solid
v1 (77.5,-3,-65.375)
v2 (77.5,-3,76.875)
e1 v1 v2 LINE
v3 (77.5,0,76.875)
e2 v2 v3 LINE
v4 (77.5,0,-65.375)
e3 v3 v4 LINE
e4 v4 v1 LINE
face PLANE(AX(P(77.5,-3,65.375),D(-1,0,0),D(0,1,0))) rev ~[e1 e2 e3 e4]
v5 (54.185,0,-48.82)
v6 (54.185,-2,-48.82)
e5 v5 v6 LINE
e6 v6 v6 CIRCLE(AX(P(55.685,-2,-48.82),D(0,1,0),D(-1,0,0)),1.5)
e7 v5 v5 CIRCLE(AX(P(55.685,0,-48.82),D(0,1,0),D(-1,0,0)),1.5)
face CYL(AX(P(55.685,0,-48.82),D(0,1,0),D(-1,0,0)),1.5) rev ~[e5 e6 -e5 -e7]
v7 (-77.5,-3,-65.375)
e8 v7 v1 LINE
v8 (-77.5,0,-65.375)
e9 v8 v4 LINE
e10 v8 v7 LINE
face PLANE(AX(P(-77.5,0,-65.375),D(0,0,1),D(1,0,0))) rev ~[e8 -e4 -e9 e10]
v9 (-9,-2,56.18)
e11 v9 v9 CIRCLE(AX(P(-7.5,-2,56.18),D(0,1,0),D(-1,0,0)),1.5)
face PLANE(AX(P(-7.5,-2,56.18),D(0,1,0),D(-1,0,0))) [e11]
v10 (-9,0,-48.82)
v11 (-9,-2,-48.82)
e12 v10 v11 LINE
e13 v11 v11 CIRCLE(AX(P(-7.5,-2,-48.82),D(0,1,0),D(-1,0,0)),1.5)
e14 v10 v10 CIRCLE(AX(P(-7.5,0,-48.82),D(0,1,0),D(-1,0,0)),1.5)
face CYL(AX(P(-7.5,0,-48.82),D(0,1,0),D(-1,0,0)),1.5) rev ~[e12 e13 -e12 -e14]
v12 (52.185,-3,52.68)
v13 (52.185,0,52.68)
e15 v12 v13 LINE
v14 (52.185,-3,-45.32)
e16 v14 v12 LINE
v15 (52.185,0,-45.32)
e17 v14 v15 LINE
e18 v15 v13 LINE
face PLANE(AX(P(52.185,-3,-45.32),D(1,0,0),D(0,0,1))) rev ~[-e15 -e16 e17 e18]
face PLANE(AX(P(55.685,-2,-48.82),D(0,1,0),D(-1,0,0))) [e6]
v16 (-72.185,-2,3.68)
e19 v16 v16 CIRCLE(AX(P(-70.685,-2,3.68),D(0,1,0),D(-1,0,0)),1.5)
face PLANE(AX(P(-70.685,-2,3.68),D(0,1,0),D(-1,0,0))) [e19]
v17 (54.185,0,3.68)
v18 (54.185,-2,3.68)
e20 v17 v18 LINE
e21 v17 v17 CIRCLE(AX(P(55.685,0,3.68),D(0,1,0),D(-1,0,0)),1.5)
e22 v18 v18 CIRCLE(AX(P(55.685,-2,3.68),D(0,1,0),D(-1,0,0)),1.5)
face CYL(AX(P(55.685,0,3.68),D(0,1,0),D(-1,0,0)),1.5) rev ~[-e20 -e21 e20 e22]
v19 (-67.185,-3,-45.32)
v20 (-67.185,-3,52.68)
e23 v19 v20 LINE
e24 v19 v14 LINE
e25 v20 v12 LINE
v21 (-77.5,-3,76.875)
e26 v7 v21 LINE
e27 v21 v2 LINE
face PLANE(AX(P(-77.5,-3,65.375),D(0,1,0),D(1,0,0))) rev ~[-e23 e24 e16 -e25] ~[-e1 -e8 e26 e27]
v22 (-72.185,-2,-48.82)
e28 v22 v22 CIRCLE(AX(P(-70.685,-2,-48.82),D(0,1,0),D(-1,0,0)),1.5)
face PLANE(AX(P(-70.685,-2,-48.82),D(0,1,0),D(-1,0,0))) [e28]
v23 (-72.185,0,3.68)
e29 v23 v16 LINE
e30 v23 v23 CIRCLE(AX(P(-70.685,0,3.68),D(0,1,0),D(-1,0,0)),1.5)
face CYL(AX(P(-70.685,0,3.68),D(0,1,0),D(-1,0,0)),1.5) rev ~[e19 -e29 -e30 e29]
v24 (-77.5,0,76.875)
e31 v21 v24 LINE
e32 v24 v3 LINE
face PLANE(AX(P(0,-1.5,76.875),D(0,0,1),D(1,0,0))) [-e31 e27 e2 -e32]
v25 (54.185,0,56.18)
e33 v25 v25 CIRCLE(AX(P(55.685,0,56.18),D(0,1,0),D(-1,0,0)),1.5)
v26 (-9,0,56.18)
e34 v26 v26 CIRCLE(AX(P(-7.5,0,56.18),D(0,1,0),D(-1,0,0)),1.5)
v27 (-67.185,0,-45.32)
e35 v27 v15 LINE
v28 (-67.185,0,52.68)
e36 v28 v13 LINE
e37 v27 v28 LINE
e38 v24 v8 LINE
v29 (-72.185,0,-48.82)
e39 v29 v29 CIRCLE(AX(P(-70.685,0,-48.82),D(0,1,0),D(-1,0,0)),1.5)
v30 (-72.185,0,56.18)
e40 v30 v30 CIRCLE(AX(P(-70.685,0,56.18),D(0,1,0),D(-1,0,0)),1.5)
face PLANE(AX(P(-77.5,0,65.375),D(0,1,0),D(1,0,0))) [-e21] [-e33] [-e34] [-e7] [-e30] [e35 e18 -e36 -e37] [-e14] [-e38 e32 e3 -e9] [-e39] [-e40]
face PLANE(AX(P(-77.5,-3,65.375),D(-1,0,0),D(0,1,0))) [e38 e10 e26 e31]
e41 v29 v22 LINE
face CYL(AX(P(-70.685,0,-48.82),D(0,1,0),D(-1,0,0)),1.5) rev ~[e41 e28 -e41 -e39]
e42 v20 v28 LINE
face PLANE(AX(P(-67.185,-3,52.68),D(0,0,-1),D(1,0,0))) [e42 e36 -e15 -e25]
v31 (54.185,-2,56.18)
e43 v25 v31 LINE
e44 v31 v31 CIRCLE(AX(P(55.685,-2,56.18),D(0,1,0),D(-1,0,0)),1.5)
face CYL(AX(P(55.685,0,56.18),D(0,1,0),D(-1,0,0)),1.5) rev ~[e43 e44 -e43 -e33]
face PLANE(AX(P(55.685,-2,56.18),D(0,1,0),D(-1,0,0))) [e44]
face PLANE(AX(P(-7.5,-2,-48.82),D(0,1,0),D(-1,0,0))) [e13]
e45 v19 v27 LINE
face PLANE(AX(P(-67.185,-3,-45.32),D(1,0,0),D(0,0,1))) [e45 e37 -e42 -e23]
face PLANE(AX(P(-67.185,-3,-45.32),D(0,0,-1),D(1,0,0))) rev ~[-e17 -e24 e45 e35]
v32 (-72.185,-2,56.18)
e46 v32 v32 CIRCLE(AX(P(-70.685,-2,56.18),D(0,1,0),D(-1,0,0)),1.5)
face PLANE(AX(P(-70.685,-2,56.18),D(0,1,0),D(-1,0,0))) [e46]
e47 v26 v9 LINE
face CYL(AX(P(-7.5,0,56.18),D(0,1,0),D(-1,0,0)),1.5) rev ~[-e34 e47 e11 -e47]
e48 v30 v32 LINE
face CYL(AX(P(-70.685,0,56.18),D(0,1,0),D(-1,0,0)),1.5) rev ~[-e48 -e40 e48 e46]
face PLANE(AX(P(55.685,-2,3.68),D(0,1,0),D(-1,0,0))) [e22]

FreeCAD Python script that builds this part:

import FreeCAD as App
import Part
import Sketcher
Q = App.Units.Quantity

doc = App.newDocument("Part")
params = doc.addObject("Spreadsheet::Sheet", "Params")
for row, (alias, value) in enumerate([
    ("sketch1_width", "155 mm"),
    ("sketch1_height", "130.75 mm"),
    ("pad1_length", "3 mm"),
    ("sketch2_height", "92 mm"),
    ("sketch2_width", "113.37 mm"),
    ("pocket1_length", "25 mm"),
    ("sketch3_height", "98 mm"),
    ("sketch3_width", "119.37 mm"),
    ("pocket2_length", "25 mm"),
    ("sketch4_diameter", "3 mm"),
    ("pocket3_length", "2 mm"),
    ("sketch5_width", "155 mm"),
    ("sketch5_height", "3 mm"),
    ("pad2_length", "11.5 mm"),
], start=1):
    params.set(f"A{row}", alias)
    params.set(f"B{row}", "=" + value)
    params.setAlias(f"B{row}", alias)

body = doc.addObject("PartDesign::Body", "Body")

# Sketch on XZ plane
sketch1 = doc.addObject("Sketcher::SketchObject", "Sketch")
body.addObject(sketch1)
sketch1.AttachmentSupport = (doc.XZ_Plane, [""])
sketch1.MapMode = "FlatFace"
sketch1.addGeometry(Part.LineSegment(App.Vector(-78, 65, 0), App.Vector(-78, -65, 0)), False)
sketch1.addGeometry(Part.LineSegment(App.Vector(-78, -65, 0), App.Vector(78, -65, 0)), False)
sketch1.addGeometry(Part.LineSegment(App.Vector(78, -65, 0), App.Vector(78, 65, 0)), False)
sketch1.addGeometry(Part.LineSegment(App.Vector(78, 65, 0), App.Vector(-78, 65, 0)), False)
sketch1.addConstraint(Sketcher.Constraint("Coincident", 0, 2, 1, 1))
sketch1.addConstraint(Sketcher.Constraint("Coincident", 1, 2, 2, 1))
sketch1.addConstraint(Sketcher.Constraint("Coincident", 2, 2, 3, 1))
sketch1.addConstraint(Sketcher.Constraint("Coincident", 3, 2, 0, 1))
sketch1.addConstraint(Sketcher.Constraint("Vertical", 0))
sketch1.addConstraint(Sketcher.Constraint("Horizontal", 1))
sketch1.addConstraint(Sketcher.Constraint("Vertical", 2))
sketch1.addConstraint(Sketcher.Constraint("Horizontal", 3))
sketch1.addConstraint(Sketcher.Constraint("Symmetric", 0, 2, 2, 2, -1, 1))
sketch1.addConstraint(Sketcher.Constraint("DistanceX", 1, 1, 1, 2, Q("155 mm")))
sketch1.addConstraint(Sketcher.Constraint("DistanceY", 0, 2, 0, 1, Q("130.75 mm")))
sketch1.setExpression("Constraints[9]", "Params.sketch1_width")
sketch1.setExpression("Constraints[10]", "Params.sketch1_height")
pad1 = doc.addObject("PartDesign::Pad", "Pad")
body.addObject(pad1)
pad1.Profile = sketch1
pad1.setExpression("Length", "Params.pad1_length")

# Sketch on XZ plane
sketch2 = doc.addObject("Sketcher::SketchObject", "Sketch001")
body.addObject(sketch2)
sketch2.AttachmentSupport = (doc.XZ_Plane, [""])
sketch2.MapMode = "FlatFace"
sketch2.addGeometry(Part.LineSegment(App.Vector(49, 50, 0), App.Vector(49, -42, 0)), False)
sketch2.addGeometry(Part.LineSegment(App.Vector(49, -42, 0), App.Vector(-64, -42, 0)), False)
sketch2.addGeometry(Part.LineSegment(App.Vector(-64, -42, 0), App.Vector(-64, 50, 0)), False)
sketch2.addGeometry(Part.LineSegment(App.Vector(-64, 50, 0), App.Vector(49, 50, 0)), False)
sketch2.addConstraint(Sketcher.Constraint("Coincident", 0, 2, 1, 1))
sketch2.addConstraint(Sketcher.Constraint("Coincident", 1, 2, 2, 1))
sketch2.addConstraint(Sketcher.Constraint("Coincident", 2, 2, 3, 1))
sketch2.addConstraint(Sketcher.Constraint("Coincident", 3, 2, 0, 1))
sketch2.addConstraint(Sketcher.Constraint("Vertical", 0))
sketch2.addConstraint(Sketcher.Constraint("Horizontal", 1))
sketch2.addConstraint(Sketcher.Constraint("Vertical", 2))
sketch2.addConstraint(Sketcher.Constraint("Horizontal", 3))
sketch2.addConstraint(Sketcher.Constraint("DistanceY", 0, 2, 0, 1, Q("92 mm")))
sketch2.addConstraint(Sketcher.Constraint("DistanceX", 1, 2, 1, 1, Q("113.37 mm")))
sketch2.addConstraint(Sketcher.Constraint("DistanceY", 0, 2, -1, 1, Q("42.32 mm")))
sketch2.addConstraint(Sketcher.Constraint("DistanceX", -1, 1, 0, 2, Q("49.185 mm")))
sketch2.setExpression("Constraints[8]", "Params.sketch2_height")
sketch2.setExpression("Constraints[9]", "Params.sketch2_width")
pocket1 = doc.addObject("PartDesign::Pocket", "Pocket")
body.addObject(pocket1)
pocket1.Profile = sketch2
pocket1.setExpression("Length", "Params.pocket1_length")
pocket1.Reversed = True

# Sketch on XZ plane
sketch3 = doc.addObject("Sketcher::SketchObject", "Sketch002")
body.addObject(sketch3)
sketch3.AttachmentSupport = (doc.XZ_Plane, [""])
sketch3.MapMode = "FlatFace"
sketch3.AttachmentOffset = App.Placement(App.Vector(0, 0, 3), App.Rotation())
sketch3.addGeometry(Part.LineSegment(App.Vector(-67, 53, 0), App.Vector(-67, -45, 0)), False)
sketch3.addGeometry(Part.LineSegment(App.Vector(-67, -45, 0), App.Vector(52, -45, 0)), False)
sketch3.addGeometry(Part.LineSegment(App.Vector(52, -45, 0), App.Vector(52, 53, 0)), False)
sketch3.addGeometry(Part.LineSegment(App.Vector(52, 53, 0), App.Vector(-67, 53, 0)), False)
sketch3.addConstraint(Sketcher.Constraint("Coincident", 0, 2, 1, 1))
sketch3.addConstraint(Sketcher.Constraint("Coincident", 1, 2, 2, 1))
sketch3.addConstraint(Sketcher.Constraint("Coincident", 2, 2, 3, 1))
sketch3.addConstraint(Sketcher.Constraint("Coincident", 3, 2, 0, 1))
sketch3.addConstraint(Sketcher.Constraint("Vertical", 0))
sketch3.addConstraint(Sketcher.Constraint("Horizontal", 1))
sketch3.addConstraint(Sketcher.Constraint("Vertical", 2))
sketch3.addConstraint(Sketcher.Constraint("Horizontal", 3))
sketch3.addConstraint(Sketcher.Constraint("DistanceY", 0, 2, 0, 1, Q("98 mm")))
sketch3.addConstraint(Sketcher.Constraint("DistanceX", 1, 1, 1, 2, Q("119.37 mm")))
sketch3.addConstraint(Sketcher.Constraint("DistanceY", 0, 2, -1, 1, Q("45.32 mm")))
sketch3.addConstraint(Sketcher.Constraint("DistanceX", 0, 2, -1, 1, Q("67.185 mm")))
sketch3.setExpression("Constraints[8]", "Params.sketch3_height")
sketch3.setExpression("Constraints[9]", "Params.sketch3_width")
pocket2 = doc.addObject("PartDesign::Pocket", "Pocket001")
body.addObject(pocket2)
pocket2.Profile = sketch3
pocket2.setExpression("Length", "Params.pocket2_length")

# Sketch on XZ plane
sketch4 = doc.addObject("Sketcher::SketchObject", "Sketch003")
body.addObject(sketch4)
sketch4.AttachmentSupport = (doc.XZ_Plane, [""])
sketch4.MapMode = "FlatFace"
sketch4.addGeometry(Part.Circle(App.Vector(55.7, 56.2, 0), App.Vector(0, 0, 1), 1.5), False)
sketch4.addGeometry(Part.Circle(App.Vector(-70.7, 56.2, 0), App.Vector(0, 0, 1), 1.5), False)
sketch4.addGeometry(Part.Circle(App.Vector(-70.7, -48.8, 0), App.Vector(0, 0, 1), 1.5), False)
sketch4.addGeometry(Part.Circle(App.Vector(55.7, -48.8, 0), App.Vector(0, 0, 1), 1.5), False)
sketch4.addGeometry(Part.Circle(App.Vector(-7.5, -48.8, 0), App.Vector(0, 0, 1), 1.5), False)
sketch4.addGeometry(Part.Circle(App.Vector(55.7, 3.7, 0), App.Vector(0, 0, 1), 1.5), False)
sketch4.addGeometry(Part.Circle(App.Vector(-70.7, 3.7, 0), App.Vector(0, 0, 1), 1.5), False)
sketch4.addGeometry(Part.Circle(App.Vector(-7.5, 56.2, 0), App.Vector(0, 0, 1), 1.5), False)
sketch4.addConstraint(Sketcher.Constraint("Equal", 0, 1))
sketch4.addConstraint(Sketcher.Constraint("Equal", 1, 2))
sketch4.addConstraint(Sketcher.Constraint("Equal", 2, 3))
sketch4.addConstraint(Sketcher.Constraint("Equal", 3, 4))
sketch4.addConstraint(Sketcher.Constraint("Equal", 4, 5))
sketch4.addConstraint(Sketcher.Constraint("Equal", 5, 6))
sketch4.addConstraint(Sketcher.Constraint("Equal", 6, 7))
sketch4.addConstraint(Sketcher.Constraint("Horizontal", 0, 3, 1, 3))
sketch4.addConstraint(Sketcher.Constraint("Horizontal", 2, 3, 3, 3))
sketch4.addConstraint(Sketcher.Constraint("Horizontal", 3, 3, 4, 3))
sketch4.addConstraint(Sketcher.Constraint("Horizontal", 5, 3, 6, 3))
sketch4.addConstraint(Sketcher.Constraint("Horizontal", 1, 3, 7, 3))
sketch4.addConstraint(Sketcher.Constraint("Vertical", 1, 3, 2, 3))
sketch4.addConstraint(Sketcher.Constraint("Vertical", 0, 3, 3, 3))
sketch4.addConstraint(Sketcher.Constraint("Vertical", 3, 3, 5, 3))
sketch4.addConstraint(Sketcher.Constraint("Vertical", 2, 3, 6, 3))
sketch4.addConstraint(Sketcher.Constraint("Vertical", 4, 3, 7, 3))
sketch4.addConstraint(Sketcher.Constraint("Diameter", 0, Q("3 mm")))
sketch4.addConstraint(Sketcher.Constraint("DistanceY", 2, 3, 1, 3, Q("105 mm")))
sketch4.addConstraint(Sketcher.Constraint("DistanceX", 4, 3, -1, 1, Q("7.5 mm")))
sketch4.addConstraint(Sketcher.Constraint("DistanceY", 5, 3, 0, 3, Q("52.5 mm")))
sketch4.addConstraint(Sketcher.Constraint("DistanceY", -1, 1, 0, 3, Q("56.18 mm")))
sketch4.addConstraint(Sketcher.Constraint("DistanceX", 1, 3, 0, 3, Q("126.37 mm")))
sketch4.addConstraint(Sketcher.Constraint("DistanceX", -1, 1, 0, 3, Q("55.685 mm")))
sketch4.setExpression("Constraints[17]", "Params.sketch4_diameter")
pocket3 = doc.addObject("PartDesign::Pocket", "Pocket002")
body.addObject(pocket3)
pocket3.Profile = sketch4
pocket3.setExpression("Length", "Params.pocket3_length")
pocket3.Reversed = True

# Sketch on XY plane
sketch5 = doc.addObject("Sketcher::SketchObject", "Sketch004")
body.addObject(sketch5)
sketch5.AttachmentSupport = (doc.XY_Plane, [""])
sketch5.MapMode = "FlatFace"
sketch5.AttachmentOffset = App.Placement(App.Vector(0, 0, 65.375), App.Rotation())
sketch5.addGeometry(Part.LineSegment(App.Vector(-77.5, 0, 0), App.Vector(-77.5, -3, 0)), False)
sketch5.addGeometry(Part.LineSegment(App.Vector(-77.5, -3, 0), App.Vector(77.5, -3, 0)), False)
sketch5.addGeometry(Part.LineSegment(App.Vector(77.5, -3, 0), App.Vector(77.5, 0, 0)), False)
sketch5.addGeometry(Part.LineSegment(App.Vector(77.5, 0, 0), App.Vector(-77.5, 0, 0)), False)
sketch5.addConstraint(Sketcher.Constraint("Coincident", 0, 2, 1, 1))
sketch5.addConstraint(Sketcher.Constraint("Coincident", 1, 2, 2, 1))
sketch5.addConstraint(Sketcher.Constraint("Coincident", 2, 2, 3, 1))
sketch5.addConstraint(Sketcher.Constraint("Coincident", 3, 2, 0, 1))
sketch5.addConstraint(Sketcher.Constraint("Vertical", 0))
sketch5.addConstraint(Sketcher.Constraint("Horizontal", 1))
sketch5.addConstraint(Sketcher.Constraint("Vertical", 2))
sketch5.addConstraint(Sketcher.Constraint("Horizontal", 3))
sketch5.addConstraint(Sketcher.Constraint("Symmetric", 2, 2, 3, 2, -1, 1))
sketch5.addConstraint(Sketcher.Constraint("DistanceX", 1, 1, 1, 2, Q("155 mm")))
sketch5.addConstraint(Sketcher.Constraint("DistanceY", 0, 2, 0, 1, Q("3 mm")))
sketch5.setExpression("Constraints[9]", "Params.sketch5_width")
sketch5.setExpression("Constraints[10]", "Params.sketch5_height")
pad2 = doc.addObject("PartDesign::Pad", "Pad001")
body.addObject(pad2)
pad2.Profile = sketch5
pad2.setExpression("Length", "Params.pad2_length")

doc.recompute()
